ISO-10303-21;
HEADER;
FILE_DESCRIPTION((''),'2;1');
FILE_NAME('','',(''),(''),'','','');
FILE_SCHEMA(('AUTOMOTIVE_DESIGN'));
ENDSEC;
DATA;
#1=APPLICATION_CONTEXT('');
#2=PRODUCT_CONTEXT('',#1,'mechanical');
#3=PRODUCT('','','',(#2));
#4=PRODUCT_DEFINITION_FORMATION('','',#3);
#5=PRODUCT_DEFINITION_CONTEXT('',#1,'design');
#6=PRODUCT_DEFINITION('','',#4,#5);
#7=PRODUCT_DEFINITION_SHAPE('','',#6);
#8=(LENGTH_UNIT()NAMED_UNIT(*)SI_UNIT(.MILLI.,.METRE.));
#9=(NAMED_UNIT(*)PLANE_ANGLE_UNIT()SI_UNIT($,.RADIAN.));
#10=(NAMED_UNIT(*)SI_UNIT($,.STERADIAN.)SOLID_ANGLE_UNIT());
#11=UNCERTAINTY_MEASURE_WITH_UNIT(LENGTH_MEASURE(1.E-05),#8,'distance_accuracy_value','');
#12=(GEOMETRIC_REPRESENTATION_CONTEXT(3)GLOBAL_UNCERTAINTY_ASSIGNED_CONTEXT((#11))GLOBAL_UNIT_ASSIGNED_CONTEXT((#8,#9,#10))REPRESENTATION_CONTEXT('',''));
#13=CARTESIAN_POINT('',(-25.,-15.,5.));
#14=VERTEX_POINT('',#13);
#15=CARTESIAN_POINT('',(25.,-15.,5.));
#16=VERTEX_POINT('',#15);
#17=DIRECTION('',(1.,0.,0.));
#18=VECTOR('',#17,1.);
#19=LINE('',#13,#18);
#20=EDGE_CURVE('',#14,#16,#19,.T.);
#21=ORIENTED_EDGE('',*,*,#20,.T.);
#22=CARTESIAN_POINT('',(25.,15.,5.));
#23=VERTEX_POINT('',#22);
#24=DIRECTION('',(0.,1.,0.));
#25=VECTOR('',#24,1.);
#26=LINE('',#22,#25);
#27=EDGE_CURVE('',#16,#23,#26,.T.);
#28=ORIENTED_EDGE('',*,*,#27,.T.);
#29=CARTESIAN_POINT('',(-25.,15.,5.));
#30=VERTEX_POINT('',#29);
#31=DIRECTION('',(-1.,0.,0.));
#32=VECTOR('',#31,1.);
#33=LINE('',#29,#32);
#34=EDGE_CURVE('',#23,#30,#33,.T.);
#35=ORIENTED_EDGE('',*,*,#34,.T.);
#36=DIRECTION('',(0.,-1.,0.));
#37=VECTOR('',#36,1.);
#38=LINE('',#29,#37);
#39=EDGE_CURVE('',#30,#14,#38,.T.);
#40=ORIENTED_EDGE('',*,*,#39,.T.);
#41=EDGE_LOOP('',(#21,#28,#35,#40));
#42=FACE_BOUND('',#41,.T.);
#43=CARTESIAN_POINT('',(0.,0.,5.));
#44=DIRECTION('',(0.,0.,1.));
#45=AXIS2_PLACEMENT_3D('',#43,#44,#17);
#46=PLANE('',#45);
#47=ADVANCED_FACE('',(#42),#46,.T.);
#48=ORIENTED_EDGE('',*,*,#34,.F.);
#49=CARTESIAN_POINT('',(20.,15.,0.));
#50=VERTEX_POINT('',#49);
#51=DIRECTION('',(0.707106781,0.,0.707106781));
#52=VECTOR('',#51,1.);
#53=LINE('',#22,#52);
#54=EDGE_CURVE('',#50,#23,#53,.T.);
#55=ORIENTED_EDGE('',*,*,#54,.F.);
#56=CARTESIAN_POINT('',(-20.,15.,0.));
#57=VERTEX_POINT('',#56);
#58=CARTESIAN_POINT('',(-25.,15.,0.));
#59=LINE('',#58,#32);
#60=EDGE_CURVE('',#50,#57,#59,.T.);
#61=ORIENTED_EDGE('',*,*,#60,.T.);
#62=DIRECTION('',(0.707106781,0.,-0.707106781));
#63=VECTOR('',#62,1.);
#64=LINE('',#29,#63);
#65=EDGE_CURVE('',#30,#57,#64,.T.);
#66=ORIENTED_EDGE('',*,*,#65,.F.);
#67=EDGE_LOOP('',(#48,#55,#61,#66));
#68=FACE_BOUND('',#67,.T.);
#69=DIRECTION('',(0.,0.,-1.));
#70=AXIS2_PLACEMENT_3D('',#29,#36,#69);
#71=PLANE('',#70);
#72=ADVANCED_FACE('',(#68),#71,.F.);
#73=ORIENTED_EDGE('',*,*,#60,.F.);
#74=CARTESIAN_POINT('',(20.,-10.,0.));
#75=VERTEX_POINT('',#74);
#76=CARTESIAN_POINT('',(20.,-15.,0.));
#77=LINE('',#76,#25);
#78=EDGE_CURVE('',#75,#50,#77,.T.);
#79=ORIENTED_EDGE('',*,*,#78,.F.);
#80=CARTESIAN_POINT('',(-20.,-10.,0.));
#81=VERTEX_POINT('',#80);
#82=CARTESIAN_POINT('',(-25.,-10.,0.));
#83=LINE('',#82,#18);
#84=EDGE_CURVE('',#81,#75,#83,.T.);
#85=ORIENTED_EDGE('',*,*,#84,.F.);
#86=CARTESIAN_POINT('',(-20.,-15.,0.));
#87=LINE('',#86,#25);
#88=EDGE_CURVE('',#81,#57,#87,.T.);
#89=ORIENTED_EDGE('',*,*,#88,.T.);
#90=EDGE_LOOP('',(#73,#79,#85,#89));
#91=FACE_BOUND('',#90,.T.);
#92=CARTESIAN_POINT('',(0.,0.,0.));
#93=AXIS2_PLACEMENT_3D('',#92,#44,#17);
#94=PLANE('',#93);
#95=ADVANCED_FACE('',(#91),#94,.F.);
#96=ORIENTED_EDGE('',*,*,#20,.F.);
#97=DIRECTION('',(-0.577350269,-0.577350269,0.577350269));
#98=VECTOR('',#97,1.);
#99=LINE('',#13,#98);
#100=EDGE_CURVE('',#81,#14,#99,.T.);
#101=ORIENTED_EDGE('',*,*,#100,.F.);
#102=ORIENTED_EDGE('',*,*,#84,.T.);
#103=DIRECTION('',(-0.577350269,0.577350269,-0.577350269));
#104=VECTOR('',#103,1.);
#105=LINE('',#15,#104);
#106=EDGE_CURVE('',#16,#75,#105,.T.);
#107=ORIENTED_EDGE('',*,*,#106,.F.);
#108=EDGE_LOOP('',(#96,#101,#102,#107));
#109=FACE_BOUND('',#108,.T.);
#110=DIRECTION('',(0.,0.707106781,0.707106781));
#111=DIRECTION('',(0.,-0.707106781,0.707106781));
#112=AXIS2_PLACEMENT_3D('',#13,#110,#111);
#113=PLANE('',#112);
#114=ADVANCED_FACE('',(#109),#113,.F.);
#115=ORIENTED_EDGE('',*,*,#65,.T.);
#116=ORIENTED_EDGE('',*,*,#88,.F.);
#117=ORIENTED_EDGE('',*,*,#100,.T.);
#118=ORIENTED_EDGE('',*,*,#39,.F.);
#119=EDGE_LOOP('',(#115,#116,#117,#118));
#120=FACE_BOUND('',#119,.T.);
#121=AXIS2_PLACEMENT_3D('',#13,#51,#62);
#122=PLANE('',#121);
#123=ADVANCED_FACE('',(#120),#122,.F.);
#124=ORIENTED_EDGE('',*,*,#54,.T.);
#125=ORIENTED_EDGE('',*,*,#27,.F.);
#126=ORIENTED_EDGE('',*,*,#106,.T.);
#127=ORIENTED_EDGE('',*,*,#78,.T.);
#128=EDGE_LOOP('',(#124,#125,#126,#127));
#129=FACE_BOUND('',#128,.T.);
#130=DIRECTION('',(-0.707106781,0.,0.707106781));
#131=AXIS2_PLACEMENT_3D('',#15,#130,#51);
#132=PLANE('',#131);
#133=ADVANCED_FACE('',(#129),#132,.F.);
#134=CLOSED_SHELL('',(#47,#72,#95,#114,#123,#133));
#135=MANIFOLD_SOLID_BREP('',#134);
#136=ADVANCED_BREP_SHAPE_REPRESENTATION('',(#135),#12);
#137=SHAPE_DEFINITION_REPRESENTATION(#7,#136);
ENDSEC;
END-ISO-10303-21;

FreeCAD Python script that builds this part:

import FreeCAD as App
import Part
import Sketcher

doc = App.newDocument("Part")
body = doc.addObject("PartDesign::Body", "Body")

sketch1 = doc.addObject("Sketcher::SketchObject", "Sketch")
body.addObject(sketch1)
sketch1.AttachmentSupport = (doc.XY_Plane, [""])
sketch1.MapMode = "FlatFace"
sketch1.addGeometry(Part.LineSegment(App.Vector(-25, 15, 0), App.Vector(-25, -15, 0)), False)
sketch1.addGeometry(Part.LineSegment(App.Vector(-25, -15, 0), App.Vector(25, -15, 0)), False)
sketch1.addGeometry(Part.LineSegment(App.Vector(25, -15, 0), App.Vector(25, 15, 0)), False)
sketch1.addGeometry(Part.LineSegment(App.Vector(25, 15, 0), App.Vector(-25, 15, 0)), False)
sketch1.addConstraint(Sketcher.Constraint("Coincident", 0, 2, 1, 1))
sketch1.addConstraint(Sketcher.Constraint("Coincident", 1, 2, 2, 1))
sketch1.addConstraint(Sketcher.Constraint("Coincident", 2, 2, 3, 1))
sketch1.addConstraint(Sketcher.Constraint("Coincident", 3, 2, 0, 1))
sketch1.addConstraint(Sketcher.Constraint("Vertical", 0))
sketch1.addConstraint(Sketcher.Constraint("Horizontal", 1))
sketch1.addConstraint(Sketcher.Constraint("Vertical", 2))
sketch1.addConstraint(Sketcher.Constraint("Horizontal", 3))
sketch1.addConstraint(Sketcher.Constraint("Symmetric", 0, 2, 2, 2, -1, 1))
sketch1.addConstraint(Sketcher.Constraint("DistanceX", 1, 1, 1, 2, 50.0))
sketch1.addConstraint(Sketcher.Constraint("DistanceY", 0, 2, 0, 1, 30.0))
pad1 = doc.addObject("PartDesign::Pad", "Pad")
body.addObject(pad1)
pad1.Profile = sketch1
pad1.Length = 5

sketch2 = doc.addObject("Sketcher::SketchObject", "Sketch001")
body.addObject(sketch2)
sketch2.AttachmentSupport = (doc.XZ_Plane, [""])
sketch2.MapMode = "FlatFace"
sketch2.AttachmentOffset = App.Placement(App.Vector(0, 0, -15), App.Rotation())
sketch2.addGeometry(Part.LineSegment(App.Vector(-25, 5, 0), App.Vector(-20, 0, 0)), False)
sketch2.addGeometry(Part.LineSegment(App.Vector(-20, 0, 0), App.Vector(-25, 0, 0)), False)
sketch2.addGeometry(Part.LineSegment(App.Vector(-25, 0, 0), App.Vector(-25, 5, 0)), False)
sketch2.addGeometry(Part.LineSegment(App.Vector(20, 0, 0), App.Vector(25, 5, 0)), False)
sketch2.addGeometry(Part.LineSegment(App.Vector(25, 5, 0), App.Vector(25, 0, 0)), False)
sketch2.addGeometry(Part.LineSegment(App.Vector(25, 0, 0), App.Vector(20, 0, 0)), False)
sketch2.addConstraint(Sketcher.Constraint("Coincident", 0, 2, 1, 1))
sketch2.addConstraint(Sketcher.Constraint("Coincident", 1, 2, 2, 1))
sketch2.addConstraint(Sketcher.Constraint("Coincident", 2, 2, 0, 1))
sketch2.addConstraint(Sketcher.Constraint("Coincident", 3, 2, 4, 1))
sketch2.addConstraint(Sketcher.Constraint("Coincident", 4, 2, 5, 1))
sketch2.addConstraint(Sketcher.Constraint("Coincident", 5, 2, 3, 1))
sketch2.addConstraint(Sketcher.Constraint("Horizontal", 1))
sketch2.addConstraint(Sketcher.Constraint("Vertical", 2))
sketch2.addConstraint(Sketcher.Constraint("Vertical", 4))
sketch2.addConstraint(Sketcher.Constraint("Horizontal", 5))
sketch2.addConstraint(Sketcher.Constraint("Symmetric", 1, 2, 4, 2, -1, 1))
sketch2.addConstraint(Sketcher.Constraint("Symmetric", 0, 2, 5, 2, -2))
sketch2.addConstraint(Sketcher.Constraint("Perpendicular", 0, 3))
sketch2.addConstraint(Sketcher.Constraint("Horizontal", 2, 2, 3, 2))
sketch2.addConstraint(Sketcher.Constraint("DistanceX", 1, 2, 1, 1, 5.0))
sketch2.addConstraint(Sketcher.Constraint("DistanceX", 0, 2, -1, 1, 20.0))
pocket1 = doc.addObject("PartDesign::Pocket", "Pocket")
body.addObject(pocket1)
pocket1.Profile = sketch2
pocket1.Type = "ThroughAll"
pocket1.Midplane = True

sketch3 = doc.addObject("Sketcher::SketchObject", "Sketch002")
body.addObject(sketch3)
sketch3.AttachmentSupport = (doc.YZ_Plane, [""])
sketch3.MapMode = "FlatFace"
sketch3.addGeometry(Part.LineSegment(App.Vector(-10, 0, 0), App.Vector(-15, 5, 0)), False)
sketch3.addGeometry(Part.LineSegment(App.Vector(-15, 5, 0), App.Vector(-15, 0, 0)), False)
sketch3.addGeometry(Part.LineSegment(App.Vector(-15, 0, 0), App.Vector(-10, 0, 0)), False)
sketch3.addConstraint(Sketcher.Constraint("Coincident", 0, 2, 1, 1))
sketch3.addConstraint(Sketcher.Constraint("Coincident", 1, 2, 2, 1))
sketch3.addConstraint(Sketcher.Constraint("Coincident", 2, 2, 0, 1))
sketch3.addConstraint(Sketcher.Constraint("Vertical", 1))
sketch3.addConstraint(Sketcher.Constraint("Horizontal", 2))
sketch3.addConstraint(Sketcher.Constraint("PointOnObject", 1, 2, -1))
sketch3.addConstraint(Sketcher.Constraint("Equal", 2, 1))
sketch3.addConstraint(Sketcher.Constraint("DistanceX", 2, 1, 2, 2, 5.0))
sketch3.addConstraint(Sketcher.Constraint("DistanceX", 0, 2, -1, 1, 15.0))
pocket2 = doc.addObject("PartDesign::Pocket", "Pocket001")
body.addObject(pocket2)
pocket2.Profile = sketch3
pocket2.Type = "ThroughAll"
pocket2.Midplane = True

doc.recompute()
